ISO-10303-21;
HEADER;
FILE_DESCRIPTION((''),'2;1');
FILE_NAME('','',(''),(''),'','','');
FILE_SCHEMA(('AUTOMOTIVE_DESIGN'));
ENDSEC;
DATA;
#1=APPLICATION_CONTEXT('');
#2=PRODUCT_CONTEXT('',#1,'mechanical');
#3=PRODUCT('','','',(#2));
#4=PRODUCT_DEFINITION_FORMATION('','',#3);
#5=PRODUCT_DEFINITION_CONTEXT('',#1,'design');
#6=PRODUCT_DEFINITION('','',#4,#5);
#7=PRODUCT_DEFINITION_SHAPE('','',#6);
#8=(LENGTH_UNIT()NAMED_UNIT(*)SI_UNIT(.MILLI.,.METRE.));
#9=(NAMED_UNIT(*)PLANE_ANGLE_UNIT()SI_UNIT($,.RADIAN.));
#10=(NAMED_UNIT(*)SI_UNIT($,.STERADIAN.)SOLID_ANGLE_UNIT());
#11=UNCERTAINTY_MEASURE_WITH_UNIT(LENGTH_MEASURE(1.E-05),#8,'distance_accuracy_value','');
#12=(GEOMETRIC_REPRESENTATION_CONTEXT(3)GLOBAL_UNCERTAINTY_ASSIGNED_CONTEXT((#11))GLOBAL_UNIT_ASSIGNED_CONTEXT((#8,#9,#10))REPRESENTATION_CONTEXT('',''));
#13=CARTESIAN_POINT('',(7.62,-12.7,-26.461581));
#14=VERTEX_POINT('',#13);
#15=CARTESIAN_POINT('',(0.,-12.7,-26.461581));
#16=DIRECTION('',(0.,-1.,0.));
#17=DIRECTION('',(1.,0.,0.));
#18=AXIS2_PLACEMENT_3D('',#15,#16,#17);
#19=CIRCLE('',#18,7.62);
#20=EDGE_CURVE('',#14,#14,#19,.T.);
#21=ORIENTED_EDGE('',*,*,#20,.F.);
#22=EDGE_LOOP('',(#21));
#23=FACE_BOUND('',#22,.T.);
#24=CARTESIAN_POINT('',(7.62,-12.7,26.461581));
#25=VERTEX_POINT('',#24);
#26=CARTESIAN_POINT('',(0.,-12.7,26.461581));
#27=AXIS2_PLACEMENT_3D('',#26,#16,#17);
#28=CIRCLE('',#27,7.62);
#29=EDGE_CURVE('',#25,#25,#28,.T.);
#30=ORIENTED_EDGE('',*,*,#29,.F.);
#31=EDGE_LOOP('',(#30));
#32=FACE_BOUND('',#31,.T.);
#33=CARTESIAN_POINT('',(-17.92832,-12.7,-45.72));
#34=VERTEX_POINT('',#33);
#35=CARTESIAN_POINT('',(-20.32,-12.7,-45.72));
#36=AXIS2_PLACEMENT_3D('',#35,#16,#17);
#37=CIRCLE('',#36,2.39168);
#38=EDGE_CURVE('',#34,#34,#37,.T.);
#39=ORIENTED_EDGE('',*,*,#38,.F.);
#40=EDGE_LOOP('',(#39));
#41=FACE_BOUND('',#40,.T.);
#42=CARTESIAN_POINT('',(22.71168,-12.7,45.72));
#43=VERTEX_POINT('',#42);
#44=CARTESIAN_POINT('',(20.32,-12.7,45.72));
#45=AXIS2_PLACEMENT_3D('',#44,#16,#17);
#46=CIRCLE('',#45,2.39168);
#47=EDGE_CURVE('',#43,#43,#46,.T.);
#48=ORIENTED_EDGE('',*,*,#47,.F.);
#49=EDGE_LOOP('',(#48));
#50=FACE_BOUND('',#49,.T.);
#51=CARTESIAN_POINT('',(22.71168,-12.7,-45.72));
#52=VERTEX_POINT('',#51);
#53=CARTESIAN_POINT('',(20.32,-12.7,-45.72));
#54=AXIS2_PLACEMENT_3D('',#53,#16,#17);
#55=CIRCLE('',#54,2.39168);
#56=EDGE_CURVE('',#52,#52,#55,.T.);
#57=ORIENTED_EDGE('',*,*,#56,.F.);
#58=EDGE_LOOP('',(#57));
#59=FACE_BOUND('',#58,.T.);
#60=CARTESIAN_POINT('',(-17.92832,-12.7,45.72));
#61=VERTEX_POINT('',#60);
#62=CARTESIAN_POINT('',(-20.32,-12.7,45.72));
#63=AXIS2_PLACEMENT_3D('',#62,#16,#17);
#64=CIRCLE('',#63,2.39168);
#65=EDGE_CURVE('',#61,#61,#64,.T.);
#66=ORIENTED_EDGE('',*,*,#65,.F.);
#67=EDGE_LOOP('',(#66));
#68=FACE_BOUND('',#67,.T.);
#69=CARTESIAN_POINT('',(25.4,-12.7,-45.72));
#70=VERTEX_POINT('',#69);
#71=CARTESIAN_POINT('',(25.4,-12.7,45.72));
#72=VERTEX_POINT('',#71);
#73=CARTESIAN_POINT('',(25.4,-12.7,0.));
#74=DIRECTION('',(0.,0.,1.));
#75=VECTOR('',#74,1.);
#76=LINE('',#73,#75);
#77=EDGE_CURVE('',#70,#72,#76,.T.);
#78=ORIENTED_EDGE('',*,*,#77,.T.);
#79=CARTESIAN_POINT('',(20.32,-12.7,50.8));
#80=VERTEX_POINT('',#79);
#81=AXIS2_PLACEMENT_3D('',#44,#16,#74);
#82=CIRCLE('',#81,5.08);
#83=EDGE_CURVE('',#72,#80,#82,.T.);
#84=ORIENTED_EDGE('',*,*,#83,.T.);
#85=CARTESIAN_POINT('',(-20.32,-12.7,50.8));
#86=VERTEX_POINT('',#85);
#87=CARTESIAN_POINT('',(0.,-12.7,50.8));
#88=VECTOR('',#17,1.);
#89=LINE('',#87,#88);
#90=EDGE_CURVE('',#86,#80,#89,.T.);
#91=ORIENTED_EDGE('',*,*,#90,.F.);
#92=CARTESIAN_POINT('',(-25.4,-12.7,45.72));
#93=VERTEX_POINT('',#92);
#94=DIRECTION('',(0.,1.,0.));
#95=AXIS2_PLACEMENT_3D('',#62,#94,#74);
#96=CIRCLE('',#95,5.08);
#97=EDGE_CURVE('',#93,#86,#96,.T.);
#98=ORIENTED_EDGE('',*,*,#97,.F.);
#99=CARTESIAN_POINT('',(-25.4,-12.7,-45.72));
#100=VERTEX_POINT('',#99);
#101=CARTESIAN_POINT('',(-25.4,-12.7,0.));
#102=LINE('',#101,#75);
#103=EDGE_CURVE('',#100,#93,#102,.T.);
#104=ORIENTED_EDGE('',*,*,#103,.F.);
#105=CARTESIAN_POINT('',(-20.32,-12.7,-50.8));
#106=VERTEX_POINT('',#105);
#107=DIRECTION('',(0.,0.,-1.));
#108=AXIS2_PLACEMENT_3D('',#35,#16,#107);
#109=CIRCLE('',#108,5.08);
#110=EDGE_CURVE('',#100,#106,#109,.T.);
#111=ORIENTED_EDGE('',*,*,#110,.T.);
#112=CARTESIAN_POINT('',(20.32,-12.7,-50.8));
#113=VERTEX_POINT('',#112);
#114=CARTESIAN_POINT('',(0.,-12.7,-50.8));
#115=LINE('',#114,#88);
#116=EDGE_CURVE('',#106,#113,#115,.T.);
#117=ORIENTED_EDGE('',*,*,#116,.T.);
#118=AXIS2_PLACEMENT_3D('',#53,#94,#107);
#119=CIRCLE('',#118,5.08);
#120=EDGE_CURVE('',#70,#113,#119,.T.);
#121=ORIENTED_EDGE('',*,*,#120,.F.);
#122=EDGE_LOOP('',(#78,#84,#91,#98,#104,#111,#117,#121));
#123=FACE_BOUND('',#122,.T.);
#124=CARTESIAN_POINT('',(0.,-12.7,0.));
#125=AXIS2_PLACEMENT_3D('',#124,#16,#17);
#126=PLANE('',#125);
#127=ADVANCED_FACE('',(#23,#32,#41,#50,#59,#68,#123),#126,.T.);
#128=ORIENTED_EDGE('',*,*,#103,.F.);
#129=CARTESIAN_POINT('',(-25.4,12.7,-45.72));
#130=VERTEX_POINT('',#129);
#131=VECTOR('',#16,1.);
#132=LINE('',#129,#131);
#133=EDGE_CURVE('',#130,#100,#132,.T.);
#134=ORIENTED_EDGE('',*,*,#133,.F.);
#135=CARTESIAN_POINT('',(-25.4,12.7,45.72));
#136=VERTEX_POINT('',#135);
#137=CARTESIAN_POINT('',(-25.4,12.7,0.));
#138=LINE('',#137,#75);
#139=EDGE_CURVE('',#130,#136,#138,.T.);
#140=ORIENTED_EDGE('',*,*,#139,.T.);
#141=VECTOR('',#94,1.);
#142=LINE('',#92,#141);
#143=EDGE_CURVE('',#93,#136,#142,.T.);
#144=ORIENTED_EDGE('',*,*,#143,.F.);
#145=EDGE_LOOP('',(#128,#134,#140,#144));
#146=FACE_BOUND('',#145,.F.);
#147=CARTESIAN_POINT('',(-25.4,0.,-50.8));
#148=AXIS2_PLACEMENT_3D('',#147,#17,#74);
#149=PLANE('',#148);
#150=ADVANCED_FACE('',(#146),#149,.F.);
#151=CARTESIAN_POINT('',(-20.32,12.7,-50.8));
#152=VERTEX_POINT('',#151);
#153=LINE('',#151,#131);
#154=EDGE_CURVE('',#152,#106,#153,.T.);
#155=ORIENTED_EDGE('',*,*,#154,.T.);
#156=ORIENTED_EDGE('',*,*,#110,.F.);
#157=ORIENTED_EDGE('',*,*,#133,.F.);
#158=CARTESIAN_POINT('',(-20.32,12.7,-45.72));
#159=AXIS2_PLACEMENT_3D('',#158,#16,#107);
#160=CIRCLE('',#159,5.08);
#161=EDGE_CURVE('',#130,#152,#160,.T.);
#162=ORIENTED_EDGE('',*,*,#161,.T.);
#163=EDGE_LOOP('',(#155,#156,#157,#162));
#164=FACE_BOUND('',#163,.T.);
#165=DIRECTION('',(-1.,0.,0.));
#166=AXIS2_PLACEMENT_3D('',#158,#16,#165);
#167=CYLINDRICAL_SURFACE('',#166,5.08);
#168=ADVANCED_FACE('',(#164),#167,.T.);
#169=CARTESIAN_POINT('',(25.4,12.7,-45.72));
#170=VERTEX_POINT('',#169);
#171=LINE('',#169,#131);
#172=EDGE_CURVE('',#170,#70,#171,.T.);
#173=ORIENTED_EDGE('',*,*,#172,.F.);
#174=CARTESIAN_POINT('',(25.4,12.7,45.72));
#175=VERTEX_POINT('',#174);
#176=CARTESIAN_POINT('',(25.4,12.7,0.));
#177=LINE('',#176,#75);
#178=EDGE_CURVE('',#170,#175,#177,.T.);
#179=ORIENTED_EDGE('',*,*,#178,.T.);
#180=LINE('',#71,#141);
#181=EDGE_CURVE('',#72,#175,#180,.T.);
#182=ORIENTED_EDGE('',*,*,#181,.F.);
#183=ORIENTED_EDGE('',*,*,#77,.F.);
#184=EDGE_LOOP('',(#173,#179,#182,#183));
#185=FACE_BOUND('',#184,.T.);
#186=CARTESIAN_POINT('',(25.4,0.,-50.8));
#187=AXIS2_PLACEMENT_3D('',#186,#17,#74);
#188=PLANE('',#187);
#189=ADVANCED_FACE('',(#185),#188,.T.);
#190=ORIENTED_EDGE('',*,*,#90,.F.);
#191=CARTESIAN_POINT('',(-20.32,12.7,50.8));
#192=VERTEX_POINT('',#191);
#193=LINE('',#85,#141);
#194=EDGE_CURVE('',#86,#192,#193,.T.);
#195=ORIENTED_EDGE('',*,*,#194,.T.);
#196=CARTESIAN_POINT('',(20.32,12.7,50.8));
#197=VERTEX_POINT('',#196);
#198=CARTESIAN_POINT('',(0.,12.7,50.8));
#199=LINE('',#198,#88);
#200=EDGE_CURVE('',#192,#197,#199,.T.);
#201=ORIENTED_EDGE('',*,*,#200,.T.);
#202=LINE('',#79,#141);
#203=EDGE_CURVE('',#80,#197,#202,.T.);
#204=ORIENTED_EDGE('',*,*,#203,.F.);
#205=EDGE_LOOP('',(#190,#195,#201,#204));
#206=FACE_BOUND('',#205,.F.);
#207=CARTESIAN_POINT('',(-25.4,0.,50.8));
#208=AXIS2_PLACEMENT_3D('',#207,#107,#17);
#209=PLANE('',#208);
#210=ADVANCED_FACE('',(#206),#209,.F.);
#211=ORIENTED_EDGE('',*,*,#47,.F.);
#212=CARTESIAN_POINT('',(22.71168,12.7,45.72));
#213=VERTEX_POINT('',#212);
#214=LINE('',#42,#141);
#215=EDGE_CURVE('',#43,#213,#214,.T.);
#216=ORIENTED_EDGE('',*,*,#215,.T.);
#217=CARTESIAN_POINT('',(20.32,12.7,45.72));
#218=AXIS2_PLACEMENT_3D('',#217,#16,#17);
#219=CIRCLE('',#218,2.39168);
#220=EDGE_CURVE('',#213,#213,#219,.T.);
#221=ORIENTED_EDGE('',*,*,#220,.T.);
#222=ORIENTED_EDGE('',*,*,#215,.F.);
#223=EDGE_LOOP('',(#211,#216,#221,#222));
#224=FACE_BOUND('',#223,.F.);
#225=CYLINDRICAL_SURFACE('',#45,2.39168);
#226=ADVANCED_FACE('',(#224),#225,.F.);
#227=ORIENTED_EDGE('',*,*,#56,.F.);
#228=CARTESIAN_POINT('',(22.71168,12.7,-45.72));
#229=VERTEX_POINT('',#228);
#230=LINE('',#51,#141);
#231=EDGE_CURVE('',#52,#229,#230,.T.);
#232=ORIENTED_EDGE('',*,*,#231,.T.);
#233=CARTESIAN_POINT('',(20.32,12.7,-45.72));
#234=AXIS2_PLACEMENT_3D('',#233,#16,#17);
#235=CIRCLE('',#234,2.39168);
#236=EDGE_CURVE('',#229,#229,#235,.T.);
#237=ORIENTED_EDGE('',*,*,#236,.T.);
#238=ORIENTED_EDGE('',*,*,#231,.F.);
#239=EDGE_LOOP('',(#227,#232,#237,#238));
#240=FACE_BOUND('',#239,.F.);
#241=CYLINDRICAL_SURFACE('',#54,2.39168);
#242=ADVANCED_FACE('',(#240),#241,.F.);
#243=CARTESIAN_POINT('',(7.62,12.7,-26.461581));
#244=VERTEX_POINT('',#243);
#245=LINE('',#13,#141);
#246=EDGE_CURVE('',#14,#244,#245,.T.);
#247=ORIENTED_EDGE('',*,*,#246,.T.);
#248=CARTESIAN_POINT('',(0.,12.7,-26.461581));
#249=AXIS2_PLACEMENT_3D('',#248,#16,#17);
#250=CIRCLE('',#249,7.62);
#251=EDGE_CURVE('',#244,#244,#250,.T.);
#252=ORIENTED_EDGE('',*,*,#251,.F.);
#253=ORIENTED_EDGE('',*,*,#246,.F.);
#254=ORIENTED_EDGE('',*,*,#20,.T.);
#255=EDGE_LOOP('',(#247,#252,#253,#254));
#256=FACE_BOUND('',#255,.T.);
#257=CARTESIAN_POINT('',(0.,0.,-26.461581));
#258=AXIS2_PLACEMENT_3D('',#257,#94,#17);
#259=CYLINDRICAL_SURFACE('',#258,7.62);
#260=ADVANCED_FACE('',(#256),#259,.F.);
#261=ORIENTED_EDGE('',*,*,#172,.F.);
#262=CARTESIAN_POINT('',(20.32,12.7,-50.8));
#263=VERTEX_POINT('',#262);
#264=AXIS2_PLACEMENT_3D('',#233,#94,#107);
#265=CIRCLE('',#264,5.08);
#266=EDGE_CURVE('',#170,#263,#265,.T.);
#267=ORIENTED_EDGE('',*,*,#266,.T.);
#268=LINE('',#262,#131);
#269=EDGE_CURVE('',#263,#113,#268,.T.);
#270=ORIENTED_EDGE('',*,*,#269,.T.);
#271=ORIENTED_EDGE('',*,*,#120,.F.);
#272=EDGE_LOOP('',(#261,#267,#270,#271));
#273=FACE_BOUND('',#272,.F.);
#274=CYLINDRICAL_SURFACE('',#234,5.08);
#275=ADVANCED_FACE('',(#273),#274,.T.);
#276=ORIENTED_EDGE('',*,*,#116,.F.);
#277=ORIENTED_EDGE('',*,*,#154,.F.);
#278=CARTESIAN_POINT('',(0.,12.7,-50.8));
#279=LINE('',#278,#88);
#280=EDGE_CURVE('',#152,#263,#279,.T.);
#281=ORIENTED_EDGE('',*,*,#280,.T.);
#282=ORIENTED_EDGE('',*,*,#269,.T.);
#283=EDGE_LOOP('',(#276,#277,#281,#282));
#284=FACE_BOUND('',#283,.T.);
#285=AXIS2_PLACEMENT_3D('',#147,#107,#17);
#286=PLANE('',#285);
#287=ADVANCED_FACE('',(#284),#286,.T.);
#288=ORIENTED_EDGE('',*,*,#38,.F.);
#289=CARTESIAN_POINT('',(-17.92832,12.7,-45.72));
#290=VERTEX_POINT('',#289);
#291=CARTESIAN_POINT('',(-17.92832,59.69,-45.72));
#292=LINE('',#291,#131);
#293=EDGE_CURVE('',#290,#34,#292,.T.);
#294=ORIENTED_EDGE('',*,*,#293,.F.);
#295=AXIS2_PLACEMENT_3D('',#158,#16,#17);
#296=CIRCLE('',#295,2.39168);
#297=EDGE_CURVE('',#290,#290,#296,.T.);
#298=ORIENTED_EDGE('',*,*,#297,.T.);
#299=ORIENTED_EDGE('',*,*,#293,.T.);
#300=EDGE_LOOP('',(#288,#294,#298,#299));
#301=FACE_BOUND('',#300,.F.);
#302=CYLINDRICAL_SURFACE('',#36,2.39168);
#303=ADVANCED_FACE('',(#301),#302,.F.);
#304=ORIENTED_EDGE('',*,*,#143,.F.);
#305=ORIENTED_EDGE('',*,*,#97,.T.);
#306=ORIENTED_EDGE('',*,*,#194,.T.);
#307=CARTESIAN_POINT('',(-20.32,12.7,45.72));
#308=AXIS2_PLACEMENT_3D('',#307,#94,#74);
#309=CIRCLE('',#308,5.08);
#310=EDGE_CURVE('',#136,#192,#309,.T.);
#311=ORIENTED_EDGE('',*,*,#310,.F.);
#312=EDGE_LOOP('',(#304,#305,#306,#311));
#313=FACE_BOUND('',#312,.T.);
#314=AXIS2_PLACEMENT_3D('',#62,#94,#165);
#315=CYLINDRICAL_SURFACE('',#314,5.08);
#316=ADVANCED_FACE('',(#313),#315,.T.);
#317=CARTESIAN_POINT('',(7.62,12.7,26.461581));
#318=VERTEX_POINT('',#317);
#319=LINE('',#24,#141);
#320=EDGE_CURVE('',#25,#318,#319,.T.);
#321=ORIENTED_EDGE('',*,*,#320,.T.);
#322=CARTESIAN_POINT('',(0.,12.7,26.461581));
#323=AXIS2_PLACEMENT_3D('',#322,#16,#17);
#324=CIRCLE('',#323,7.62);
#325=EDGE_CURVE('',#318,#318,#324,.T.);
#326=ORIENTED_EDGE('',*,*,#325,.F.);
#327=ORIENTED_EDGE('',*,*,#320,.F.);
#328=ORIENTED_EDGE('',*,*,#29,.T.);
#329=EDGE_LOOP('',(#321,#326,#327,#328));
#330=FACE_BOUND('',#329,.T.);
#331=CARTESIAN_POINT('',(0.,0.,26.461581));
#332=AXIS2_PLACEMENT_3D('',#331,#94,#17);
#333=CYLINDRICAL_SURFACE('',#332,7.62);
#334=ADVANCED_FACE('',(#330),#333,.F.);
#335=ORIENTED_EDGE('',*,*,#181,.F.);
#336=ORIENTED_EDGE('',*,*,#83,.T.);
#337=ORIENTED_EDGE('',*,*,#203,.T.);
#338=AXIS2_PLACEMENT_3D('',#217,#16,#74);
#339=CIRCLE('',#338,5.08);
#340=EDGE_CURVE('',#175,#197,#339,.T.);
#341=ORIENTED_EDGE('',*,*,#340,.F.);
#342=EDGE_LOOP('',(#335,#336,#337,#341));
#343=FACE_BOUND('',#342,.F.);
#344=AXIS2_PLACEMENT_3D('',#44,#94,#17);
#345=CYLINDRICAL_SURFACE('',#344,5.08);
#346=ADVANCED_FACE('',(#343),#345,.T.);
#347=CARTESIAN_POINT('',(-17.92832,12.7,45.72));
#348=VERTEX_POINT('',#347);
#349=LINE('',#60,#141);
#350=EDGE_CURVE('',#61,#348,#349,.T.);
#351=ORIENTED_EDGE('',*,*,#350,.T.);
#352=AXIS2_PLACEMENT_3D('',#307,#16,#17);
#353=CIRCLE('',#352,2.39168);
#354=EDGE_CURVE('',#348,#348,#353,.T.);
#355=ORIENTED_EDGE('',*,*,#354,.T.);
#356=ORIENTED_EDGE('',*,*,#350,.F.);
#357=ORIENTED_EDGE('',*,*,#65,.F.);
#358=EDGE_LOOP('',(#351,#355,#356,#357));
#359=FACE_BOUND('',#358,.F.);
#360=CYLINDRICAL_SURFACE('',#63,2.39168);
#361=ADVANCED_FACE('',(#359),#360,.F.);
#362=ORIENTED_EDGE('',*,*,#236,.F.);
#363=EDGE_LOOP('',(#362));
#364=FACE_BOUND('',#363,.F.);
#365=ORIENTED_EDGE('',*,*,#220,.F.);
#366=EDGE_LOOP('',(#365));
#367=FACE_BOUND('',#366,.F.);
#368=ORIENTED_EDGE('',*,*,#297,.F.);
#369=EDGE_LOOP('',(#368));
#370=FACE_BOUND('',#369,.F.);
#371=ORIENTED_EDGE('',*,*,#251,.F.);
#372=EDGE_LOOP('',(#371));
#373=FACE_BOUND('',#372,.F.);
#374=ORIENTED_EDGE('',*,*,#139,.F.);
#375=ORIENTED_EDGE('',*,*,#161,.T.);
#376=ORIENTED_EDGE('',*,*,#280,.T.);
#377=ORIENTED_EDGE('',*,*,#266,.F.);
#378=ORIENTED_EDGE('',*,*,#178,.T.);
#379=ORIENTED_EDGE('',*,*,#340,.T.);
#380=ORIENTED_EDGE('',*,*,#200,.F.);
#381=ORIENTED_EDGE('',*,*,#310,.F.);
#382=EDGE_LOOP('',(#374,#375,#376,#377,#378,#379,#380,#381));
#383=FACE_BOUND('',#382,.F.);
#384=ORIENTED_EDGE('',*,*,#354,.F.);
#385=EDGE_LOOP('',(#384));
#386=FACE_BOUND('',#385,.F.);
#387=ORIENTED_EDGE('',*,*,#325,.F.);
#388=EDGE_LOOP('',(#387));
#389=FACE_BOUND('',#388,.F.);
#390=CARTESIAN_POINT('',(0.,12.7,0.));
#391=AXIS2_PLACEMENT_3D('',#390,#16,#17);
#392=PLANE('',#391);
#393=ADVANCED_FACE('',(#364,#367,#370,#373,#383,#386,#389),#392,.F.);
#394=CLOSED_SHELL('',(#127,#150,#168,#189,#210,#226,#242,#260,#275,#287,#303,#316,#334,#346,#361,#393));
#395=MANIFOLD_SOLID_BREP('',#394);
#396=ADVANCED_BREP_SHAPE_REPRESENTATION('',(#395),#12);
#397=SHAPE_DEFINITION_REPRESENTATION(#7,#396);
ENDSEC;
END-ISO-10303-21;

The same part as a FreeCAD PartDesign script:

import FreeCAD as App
import Part
import Sketcher
Q = App.Units.Quantity


def edges_at(feature, points):
    """Names of the edges that pass closest to the given points."""
    edges = feature.Shape.Edges
    near = lambda p: min(range(len(edges)), key=lambda i: edges[i].distToShape(Part.Vertex(*p))[0])
    return sorted({f"Edge{near(p) + 1}" for p in points})


def add_polygon(sketch, points):
    """Adds a closed chain of lines whose ends are joined by coincident constraints."""
    first, n = sketch.GeometryCount, len(points)
    for a, b in zip(points, points[1:] + points[:1]):
        sketch.addGeometry(Part.LineSegment(App.Vector(*a, 0), App.Vector(*b, 0)), False)
    for i in range(n):
        sketch.addConstraint(Sketcher.Constraint("Coincident", first + i, 2, first + (i + 1) % n, 1))

doc = App.newDocument("Part")
body = doc.addObject("PartDesign::Body", "Body")

# Sketch on XZ plane
sketch1 = body.newObject("Sketcher::SketchObject", "Sketch")
sketch1.AttachmentSupport = (doc.getObject("XZ_Plane"), [""])
sketch1.MapMode = "FlatFace"
add_polygon(sketch1, [(-25, 51), (-25, -51), (25, -51), (25, 51)])  # lines 0-3
sketch1.addGeometry(Part.Circle(App.Vector(0, -26, 0), App.Vector(0, 0, 1), 8), False)  # 4
sketch1.addGeometry(Part.Circle(App.Vector(0, 26, 0), App.Vector(0, 0, 1), 8), False)  # 5
sketch1.addConstraint([
    Sketcher.Constraint("Vertical", 0),
    Sketcher.Constraint("Horizontal", 1),
    Sketcher.Constraint("Vertical", 2),
    Sketcher.Constraint("Horizontal", 3),
    Sketcher.Constraint("Equal", 4, 5),
    Sketcher.Constraint("Symmetric", 4, 3, 5, 3, -1, 1),
    Sketcher.Constraint("Symmetric", 0, 2, 2, 2, -1, 1),
    Sketcher.Constraint("PointOnObject", 4, 3, -2),
    Sketcher.Constraint("Diameter", 4, Q("0.6 in")),
    Sketcher.Constraint("DistanceX", 1, 1, 1, 2, Q("2 in")),
    Sketcher.Constraint("DistanceY", 0, 2, 0, 1, Q("4 in")),
    Sketcher.Constraint("DistanceY", 4, 3, -1, 1, 26.461581),
])
pad1 = body.newObject("PartDesign::Pad", "Pad")
pad1.Profile = sketch1
pad1.Length = Q("1 in")
pad1.Midplane = True
doc.recompute()

fillet = body.newObject("PartDesign::Fillet", "Fillet")
fillet.Base = (pad1, edges_at(pad1, [
    (-25.4, 0, 50.8),
    (25.4, 0, 50.8),
    (25.4, 0, -50.8),
    (-25.4, 0, -50.8),
]))
fillet.Radius = Q("0.2 in")

# Sketch on XZ plane
sketch2 = body.newObject("Sketcher::SketchObject", "Sketch001")
sketch2.AttachmentSupport = (doc.getObject("XZ_Plane"), [""])
sketch2.MapMode = "FlatFace"
sketch2.AttachmentOffset = App.Placement(App.Vector(0, 0, 0.5 * 25.4), App.Rotation())
sketch2.addGeometry([
    Part.Circle(App.Vector(-20.3, 45.7, 0), App.Vector(0, 0, 1), 2.4),
    Part.Circle(App.Vector(20.3, 45.7, 0), App.Vector(0, 0, 1), 2.4),
    Part.Circle(App.Vector(20.3, -45.7, 0), App.Vector(0, 0, 1), 2.4),
    Part.Circle(App.Vector(-20.3, -45.7, 0), App.Vector(0, 0, 1), 2.4),
], False)
sketch2.addConstraint([
    Sketcher.Constraint("Equal", 0, 1),
    Sketcher.Constraint("Equal", 1, 2),
    Sketcher.Constraint("Equal", 2, 3),
    Sketcher.Constraint("Symmetric", 0, 3, 2, 3, -1, 1),
    Sketcher.Constraint("Symmetric", 1, 3, 3, 3, -1, 1),
    Sketcher.Constraint("Symmetric", 0, 3, 1, 3, -2),
    Sketcher.Constraint("DistanceX", 0, 3, -1, 1, Q("0.8 in")),
    Sketcher.Constraint("DistanceY", -1, 1, 0, 3, Q("1.8 in")),
    Sketcher.Constraint("Diameter", 0, 4.78336),
])
pocket1 = body.newObject("PartDesign::Pocket", "Pocket")
pocket1.Profile = sketch2
pocket1.Length = Q("5.7 in")
pocket1.Midplane = True

doc.recompute()
